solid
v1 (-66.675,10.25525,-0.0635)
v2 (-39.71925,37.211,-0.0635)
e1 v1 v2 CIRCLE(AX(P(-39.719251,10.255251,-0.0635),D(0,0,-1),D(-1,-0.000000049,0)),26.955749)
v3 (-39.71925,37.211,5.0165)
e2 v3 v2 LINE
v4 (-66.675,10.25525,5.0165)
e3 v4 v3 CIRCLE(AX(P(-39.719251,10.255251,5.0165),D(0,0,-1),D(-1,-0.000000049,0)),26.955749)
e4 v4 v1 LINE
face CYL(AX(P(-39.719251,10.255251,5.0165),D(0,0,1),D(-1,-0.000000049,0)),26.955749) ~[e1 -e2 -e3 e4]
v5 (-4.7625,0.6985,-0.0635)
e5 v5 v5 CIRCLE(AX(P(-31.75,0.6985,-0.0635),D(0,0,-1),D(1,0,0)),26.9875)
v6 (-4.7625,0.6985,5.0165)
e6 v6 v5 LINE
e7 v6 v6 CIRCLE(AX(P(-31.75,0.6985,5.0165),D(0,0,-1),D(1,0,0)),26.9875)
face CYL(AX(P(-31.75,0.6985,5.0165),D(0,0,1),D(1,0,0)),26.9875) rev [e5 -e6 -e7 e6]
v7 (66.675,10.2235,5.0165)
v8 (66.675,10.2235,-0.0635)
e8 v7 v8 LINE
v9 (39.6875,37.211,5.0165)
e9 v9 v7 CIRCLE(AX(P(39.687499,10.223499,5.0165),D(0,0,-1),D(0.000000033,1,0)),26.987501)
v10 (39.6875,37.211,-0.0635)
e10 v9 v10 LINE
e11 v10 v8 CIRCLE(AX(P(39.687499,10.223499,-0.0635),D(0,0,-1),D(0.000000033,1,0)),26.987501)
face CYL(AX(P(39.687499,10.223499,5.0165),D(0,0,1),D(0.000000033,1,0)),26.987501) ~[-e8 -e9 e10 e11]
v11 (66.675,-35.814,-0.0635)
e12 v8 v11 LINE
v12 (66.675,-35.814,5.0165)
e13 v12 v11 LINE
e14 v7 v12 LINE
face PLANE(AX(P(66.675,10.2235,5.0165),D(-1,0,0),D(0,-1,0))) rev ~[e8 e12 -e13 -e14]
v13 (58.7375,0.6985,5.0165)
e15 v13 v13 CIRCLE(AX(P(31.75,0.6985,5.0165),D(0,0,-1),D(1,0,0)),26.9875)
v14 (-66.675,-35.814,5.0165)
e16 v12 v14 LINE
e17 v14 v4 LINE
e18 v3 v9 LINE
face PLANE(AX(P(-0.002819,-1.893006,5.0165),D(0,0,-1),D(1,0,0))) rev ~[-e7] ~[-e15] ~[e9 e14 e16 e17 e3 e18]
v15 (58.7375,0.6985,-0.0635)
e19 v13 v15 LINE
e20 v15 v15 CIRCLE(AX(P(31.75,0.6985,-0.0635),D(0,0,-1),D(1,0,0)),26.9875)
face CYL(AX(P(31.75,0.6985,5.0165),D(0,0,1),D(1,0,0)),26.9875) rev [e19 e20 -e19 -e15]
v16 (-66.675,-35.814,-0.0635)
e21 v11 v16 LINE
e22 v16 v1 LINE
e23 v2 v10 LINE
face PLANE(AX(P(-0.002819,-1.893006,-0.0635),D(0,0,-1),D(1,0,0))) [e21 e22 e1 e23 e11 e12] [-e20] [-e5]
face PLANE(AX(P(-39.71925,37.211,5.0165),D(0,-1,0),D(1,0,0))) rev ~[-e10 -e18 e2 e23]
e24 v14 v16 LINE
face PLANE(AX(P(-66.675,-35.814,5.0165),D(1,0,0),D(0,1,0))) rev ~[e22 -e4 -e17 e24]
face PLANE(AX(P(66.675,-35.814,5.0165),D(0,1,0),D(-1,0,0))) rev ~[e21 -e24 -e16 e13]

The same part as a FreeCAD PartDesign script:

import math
import FreeCAD as App
import Part
import Sketcher

V = App.Vector
Q = App.Units.Quantity

doc = App.newDocument("Part")
body = doc.addObject("PartDesign::Body", "Body")

# Sketch on XZ plane
sketch1 = body.newObject("Sketcher::SketchObject", "Sketch")
sketch1.AttachmentSupport = (doc.getObject("XZ_Plane"), [""])
sketch1.MapMode = "FlatFace"
sketch1.addGeometry([
    Part.LineSegment(V(67, 37, 0), V(-67, 37, 0)),  # 0
    Part.LineSegment(V(-67, 37, 0), V(-67, -10, 0)),  # 1
    Part.ArcOfCircle(Part.Circle(V(-40, -10, 0), V(0, 0, 1), 27), math.radians(180), math.radians(270)),  # 2
    Part.LineSegment(V(-40, -37, 0), V(40, -37, 0)),  # 3
    Part.ArcOfCircle(Part.Circle(V(40, -10, 0), V(0, 0, 1), 27), math.radians(-90), math.radians(0)),  # 4
    Part.LineSegment(V(67, -10, 0), V(67, 37, 0)),  # 5
    Part.Circle(V(-32, 0, 0), V(0, 0, 1), 27),  # 6
    Part.Circle(V(32, 0, 0), V(0, 0, 1), 27),  # 7
], False)
sketch1.addConstraint([
    Sketcher.Constraint("Coincident", 0, 2, 1, 1),
    Sketcher.Constraint("Tangent", 1, 2, 2, 1),
    Sketcher.Constraint("Tangent", 2, 2, 3, 1),
    Sketcher.Constraint("Tangent", 3, 2, 4, 1),
    Sketcher.Constraint("Tangent", 4, 2, 5, 1),
    Sketcher.Constraint("Coincident", 5, 2, 0, 1),
    Sketcher.Constraint("Horizontal", 0),
    Sketcher.Constraint("Vertical", 1),
    Sketcher.Constraint("Horizontal", 3),
    Sketcher.Constraint("Vertical", 5),
    Sketcher.Constraint("Equal", 4, 6),
    Sketcher.Constraint("Equal", 6, 7),
    Sketcher.Constraint("Symmetric", 6, 3, 7, 3, -1, 1),
    Sketcher.Constraint("PointOnObject", 6, 3, -1),
    Sketcher.Constraint("Diameter", 6, Q("2.125 in")),
    Sketcher.Constraint("DistanceX", 0, 2, 0, 1, Q("5.25 in")),
    Sketcher.Constraint("DistanceX", 6, 3, 7, 3, Q("2.5 in")),
    Sketcher.Constraint("DistanceY", 5, 1, 5, 2, Q("1.8125 in")),
    Sketcher.Constraint("DistanceX", -1, 1, 4, 3, Q("1.5625 in")),
    Sketcher.Constraint("DistanceY", 4, 3, -1, 1, Q("0.375 in")),
    Sketcher.Constraint("Radius", 2, Q("26.955749 mm")),
])
pad1 = body.newObject("PartDesign::Pad", "Pad")
pad1.Profile = sketch1
pad1.Length = Q("0.2 in")
body2 = doc.addObject("PartDesign::Body", "Body001")
doc.recompute()

body.Placement = App.Placement(V(0, 36.5125, 36.5125), App.Rotation(V(1, 0, 0), 90))
boolean = body2.newObject("PartDesign::Boolean", "Boolean")
boolean.Type = "Fuse"
boolean.addObjects([body])
body3 = doc.addObject("PartDesign::Body", "Body002")
doc.recompute()

body2.Placement = App.Placement(V(0, -35.814, -31.496), App.Rotation(V(0, 0, 1), 0))
boolean2 = body3.newObject("PartDesign::Boolean", "Boolean001")
boolean2.Type = "Fuse"
boolean2.addObjects([body2])

doc.recompute()
